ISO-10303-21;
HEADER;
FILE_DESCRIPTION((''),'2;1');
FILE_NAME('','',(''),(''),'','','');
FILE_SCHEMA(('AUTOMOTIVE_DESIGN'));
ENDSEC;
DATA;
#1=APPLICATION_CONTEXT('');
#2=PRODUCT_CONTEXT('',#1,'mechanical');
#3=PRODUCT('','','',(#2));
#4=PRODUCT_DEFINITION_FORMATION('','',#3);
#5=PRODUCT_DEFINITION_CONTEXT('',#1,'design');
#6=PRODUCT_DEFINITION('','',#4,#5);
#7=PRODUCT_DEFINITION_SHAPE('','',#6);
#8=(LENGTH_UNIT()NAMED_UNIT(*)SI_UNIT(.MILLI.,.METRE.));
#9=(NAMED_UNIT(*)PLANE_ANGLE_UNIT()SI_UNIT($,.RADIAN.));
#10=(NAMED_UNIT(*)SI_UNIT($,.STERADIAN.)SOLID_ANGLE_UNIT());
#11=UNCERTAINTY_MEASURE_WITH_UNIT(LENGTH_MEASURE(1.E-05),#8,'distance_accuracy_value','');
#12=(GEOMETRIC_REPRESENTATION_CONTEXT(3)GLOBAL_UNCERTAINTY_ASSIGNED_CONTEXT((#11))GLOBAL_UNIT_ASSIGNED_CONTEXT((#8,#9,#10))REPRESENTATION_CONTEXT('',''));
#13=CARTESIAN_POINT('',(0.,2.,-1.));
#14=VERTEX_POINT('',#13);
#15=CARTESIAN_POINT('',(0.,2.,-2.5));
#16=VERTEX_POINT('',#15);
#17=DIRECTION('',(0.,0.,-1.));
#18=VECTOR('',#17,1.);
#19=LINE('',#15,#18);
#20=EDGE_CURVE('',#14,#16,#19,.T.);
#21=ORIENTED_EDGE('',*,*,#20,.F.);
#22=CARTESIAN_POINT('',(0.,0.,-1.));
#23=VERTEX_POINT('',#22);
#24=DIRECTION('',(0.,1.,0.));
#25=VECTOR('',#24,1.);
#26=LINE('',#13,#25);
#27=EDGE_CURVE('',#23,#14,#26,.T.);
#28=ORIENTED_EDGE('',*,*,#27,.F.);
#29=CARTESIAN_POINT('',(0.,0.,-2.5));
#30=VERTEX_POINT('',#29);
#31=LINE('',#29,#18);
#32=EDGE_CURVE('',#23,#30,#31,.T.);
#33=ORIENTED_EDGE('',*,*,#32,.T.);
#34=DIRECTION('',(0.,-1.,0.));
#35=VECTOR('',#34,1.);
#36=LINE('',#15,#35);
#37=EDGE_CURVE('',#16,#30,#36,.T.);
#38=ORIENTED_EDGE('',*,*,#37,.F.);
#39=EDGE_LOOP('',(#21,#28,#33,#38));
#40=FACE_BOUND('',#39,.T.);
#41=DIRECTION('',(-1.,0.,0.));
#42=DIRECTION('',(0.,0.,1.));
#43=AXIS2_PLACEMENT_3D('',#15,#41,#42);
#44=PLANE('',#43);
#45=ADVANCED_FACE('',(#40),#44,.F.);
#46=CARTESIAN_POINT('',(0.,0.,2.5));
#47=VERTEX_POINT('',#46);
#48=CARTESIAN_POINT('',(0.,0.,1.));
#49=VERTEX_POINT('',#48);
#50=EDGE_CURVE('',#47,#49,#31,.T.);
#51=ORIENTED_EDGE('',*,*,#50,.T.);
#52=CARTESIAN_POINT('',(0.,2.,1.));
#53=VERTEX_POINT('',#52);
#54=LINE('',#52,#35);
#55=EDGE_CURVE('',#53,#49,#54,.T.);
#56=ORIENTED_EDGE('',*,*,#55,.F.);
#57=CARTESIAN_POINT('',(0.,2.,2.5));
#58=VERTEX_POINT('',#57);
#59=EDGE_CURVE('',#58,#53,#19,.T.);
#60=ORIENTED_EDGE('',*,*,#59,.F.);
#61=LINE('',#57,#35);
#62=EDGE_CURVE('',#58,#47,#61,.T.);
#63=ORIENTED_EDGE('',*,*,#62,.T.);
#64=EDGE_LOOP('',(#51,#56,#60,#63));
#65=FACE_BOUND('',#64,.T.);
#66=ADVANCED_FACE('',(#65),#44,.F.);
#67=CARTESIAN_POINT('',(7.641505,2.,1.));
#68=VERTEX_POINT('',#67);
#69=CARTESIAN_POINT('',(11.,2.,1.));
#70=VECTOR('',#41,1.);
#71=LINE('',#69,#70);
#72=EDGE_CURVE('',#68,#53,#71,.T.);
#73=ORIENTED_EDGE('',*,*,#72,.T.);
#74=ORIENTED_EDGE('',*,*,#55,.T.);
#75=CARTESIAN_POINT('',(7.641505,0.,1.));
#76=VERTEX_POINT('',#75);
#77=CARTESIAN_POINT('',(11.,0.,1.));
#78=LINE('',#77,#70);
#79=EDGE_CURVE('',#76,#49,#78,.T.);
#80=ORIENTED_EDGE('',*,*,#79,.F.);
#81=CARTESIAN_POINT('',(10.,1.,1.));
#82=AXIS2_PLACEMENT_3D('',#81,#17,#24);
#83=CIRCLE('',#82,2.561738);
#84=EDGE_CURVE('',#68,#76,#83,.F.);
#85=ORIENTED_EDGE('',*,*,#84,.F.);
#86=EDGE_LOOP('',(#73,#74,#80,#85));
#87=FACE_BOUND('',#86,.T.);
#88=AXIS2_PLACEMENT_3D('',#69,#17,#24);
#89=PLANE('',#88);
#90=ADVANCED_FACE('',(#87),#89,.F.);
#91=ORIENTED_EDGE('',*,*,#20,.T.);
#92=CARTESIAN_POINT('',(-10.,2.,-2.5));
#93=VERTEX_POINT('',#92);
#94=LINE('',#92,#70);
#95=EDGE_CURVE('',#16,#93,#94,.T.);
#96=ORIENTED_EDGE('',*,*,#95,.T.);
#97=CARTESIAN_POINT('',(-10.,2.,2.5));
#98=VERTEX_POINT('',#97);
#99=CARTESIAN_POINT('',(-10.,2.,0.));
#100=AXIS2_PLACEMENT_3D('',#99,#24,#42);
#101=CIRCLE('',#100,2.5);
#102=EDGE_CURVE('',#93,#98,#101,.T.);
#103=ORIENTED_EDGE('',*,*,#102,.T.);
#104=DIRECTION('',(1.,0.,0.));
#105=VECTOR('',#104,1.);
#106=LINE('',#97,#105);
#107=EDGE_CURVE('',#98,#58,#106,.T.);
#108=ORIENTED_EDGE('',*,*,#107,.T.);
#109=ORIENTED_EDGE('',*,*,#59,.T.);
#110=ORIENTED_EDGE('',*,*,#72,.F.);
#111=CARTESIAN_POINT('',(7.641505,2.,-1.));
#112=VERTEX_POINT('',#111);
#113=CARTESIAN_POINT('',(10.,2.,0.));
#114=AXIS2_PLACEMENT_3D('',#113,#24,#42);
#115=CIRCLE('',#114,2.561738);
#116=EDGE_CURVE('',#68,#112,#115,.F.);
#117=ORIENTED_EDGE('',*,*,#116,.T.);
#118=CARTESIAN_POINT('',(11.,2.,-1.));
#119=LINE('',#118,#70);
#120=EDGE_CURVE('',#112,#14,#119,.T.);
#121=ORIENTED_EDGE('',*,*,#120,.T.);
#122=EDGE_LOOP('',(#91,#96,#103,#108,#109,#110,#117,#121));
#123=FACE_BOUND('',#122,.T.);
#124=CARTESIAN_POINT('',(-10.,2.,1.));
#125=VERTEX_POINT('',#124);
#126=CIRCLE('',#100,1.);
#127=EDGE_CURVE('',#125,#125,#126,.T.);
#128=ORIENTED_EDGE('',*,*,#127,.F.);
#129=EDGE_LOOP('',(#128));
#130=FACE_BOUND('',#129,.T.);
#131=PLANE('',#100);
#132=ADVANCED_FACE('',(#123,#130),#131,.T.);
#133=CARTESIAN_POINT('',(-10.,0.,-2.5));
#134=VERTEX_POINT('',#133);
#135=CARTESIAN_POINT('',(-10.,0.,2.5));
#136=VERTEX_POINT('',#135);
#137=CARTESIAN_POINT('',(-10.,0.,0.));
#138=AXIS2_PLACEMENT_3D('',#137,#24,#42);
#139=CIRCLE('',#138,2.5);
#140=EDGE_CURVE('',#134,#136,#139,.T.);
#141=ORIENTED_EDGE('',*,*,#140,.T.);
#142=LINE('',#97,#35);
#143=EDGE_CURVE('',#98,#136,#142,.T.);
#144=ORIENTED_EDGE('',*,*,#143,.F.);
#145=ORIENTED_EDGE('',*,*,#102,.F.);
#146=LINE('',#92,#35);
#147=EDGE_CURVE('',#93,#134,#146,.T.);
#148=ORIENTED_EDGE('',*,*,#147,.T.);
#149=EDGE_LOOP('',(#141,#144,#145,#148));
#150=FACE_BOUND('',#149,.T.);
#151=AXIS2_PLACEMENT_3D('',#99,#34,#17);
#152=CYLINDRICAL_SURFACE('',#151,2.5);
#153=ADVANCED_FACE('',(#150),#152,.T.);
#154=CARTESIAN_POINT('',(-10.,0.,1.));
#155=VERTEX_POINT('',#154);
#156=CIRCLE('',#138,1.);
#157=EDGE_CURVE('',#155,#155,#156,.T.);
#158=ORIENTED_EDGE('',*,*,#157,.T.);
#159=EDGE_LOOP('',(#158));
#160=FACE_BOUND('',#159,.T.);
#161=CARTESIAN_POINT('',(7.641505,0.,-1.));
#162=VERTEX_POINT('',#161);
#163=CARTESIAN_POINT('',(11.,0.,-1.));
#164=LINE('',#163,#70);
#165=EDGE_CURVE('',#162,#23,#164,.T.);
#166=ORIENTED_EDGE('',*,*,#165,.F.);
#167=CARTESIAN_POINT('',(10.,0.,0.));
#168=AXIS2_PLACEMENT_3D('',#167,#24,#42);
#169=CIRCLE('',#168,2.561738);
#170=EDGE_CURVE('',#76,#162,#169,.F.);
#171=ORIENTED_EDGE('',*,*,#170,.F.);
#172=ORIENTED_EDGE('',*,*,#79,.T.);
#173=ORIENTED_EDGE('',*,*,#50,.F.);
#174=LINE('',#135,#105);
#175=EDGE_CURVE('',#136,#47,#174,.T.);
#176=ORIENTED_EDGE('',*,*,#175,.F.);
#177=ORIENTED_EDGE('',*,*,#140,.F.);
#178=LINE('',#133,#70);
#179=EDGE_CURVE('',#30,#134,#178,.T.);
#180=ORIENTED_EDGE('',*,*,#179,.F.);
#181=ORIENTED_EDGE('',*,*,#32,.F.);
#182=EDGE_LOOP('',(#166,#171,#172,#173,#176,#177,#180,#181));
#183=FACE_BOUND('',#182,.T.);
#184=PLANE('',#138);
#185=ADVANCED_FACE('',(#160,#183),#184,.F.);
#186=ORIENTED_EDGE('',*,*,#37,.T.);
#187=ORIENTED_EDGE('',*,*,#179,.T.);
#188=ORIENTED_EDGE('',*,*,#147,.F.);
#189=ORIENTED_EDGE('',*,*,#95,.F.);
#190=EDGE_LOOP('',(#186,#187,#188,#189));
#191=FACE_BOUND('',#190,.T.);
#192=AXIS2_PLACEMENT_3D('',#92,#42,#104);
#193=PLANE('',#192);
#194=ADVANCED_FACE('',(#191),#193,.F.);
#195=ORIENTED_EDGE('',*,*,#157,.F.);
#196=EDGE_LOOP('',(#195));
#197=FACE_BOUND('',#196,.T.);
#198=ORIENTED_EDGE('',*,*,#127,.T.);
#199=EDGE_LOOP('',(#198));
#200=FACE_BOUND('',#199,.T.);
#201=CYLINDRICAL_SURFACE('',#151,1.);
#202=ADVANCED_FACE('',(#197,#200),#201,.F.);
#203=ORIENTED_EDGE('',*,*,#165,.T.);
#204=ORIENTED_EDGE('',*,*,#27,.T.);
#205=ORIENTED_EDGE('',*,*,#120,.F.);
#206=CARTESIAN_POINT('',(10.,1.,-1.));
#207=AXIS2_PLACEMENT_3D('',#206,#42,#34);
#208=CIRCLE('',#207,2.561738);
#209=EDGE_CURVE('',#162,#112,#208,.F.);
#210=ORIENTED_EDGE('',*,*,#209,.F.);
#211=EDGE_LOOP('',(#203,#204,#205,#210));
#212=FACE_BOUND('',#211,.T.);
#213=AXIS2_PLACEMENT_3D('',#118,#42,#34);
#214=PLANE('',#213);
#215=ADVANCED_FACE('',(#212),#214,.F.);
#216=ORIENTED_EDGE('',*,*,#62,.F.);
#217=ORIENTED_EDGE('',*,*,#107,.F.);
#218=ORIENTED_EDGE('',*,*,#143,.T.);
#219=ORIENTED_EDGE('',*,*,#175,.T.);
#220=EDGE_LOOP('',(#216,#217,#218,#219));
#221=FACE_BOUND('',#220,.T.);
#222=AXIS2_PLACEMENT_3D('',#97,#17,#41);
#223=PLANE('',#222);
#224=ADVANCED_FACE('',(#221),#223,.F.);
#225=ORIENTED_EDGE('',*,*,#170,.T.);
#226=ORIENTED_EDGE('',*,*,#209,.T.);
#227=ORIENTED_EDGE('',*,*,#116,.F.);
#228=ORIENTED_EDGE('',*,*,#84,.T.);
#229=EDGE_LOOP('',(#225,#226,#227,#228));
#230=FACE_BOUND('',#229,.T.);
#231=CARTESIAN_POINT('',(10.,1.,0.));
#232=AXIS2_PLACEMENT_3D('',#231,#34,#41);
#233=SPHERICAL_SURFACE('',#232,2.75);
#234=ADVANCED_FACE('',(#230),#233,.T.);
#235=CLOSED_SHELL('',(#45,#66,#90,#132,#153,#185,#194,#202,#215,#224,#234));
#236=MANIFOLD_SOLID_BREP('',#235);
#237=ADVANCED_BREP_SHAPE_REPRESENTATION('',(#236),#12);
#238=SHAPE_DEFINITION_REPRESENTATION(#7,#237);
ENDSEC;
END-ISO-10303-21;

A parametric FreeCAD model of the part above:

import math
import FreeCAD as App
import Part
import Sketcher
from FreeCAD import Vector


def add_polygon(sketch, points):
    """Adds a closed chain of lines whose ends are joined by coincident constraints."""
    first, n = sketch.GeometryCount, len(points)
    for a, b in zip(points, points[1:] + points[:1]):
        sketch.addGeometry(Part.LineSegment(App.Vector(*a, 0), App.Vector(*b, 0)), False)
    for i in range(n):
        sketch.addConstraint(Sketcher.Constraint("Coincident", first + i, 2, first + (i + 1) % n, 1))

doc = App.newDocument("Part")
body = doc.addObject("PartDesign::Body", "Body")

# Sketch on XZ plane
sketch1 = doc.addObject("Sketcher::SketchObject", "Sketch")
body.addObject(sketch1)
sketch1.AttachmentSupport = (doc.XZ_Plane, [""])
sketch1.MapMode = "FlatFace"
sketch1.addGeometry([
    Part.LineSegment(Vector(0, -2.5, 0), Vector(-10, -2.5, 0)),  # 0
    Part.ArcOfCircle(Part.Circle(Vector(-10, 0, 0), Vector(0, 0, 1), 2.5), math.radians(90), math.radians(270)),  # 1
    Part.LineSegment(Vector(-10, 2.5, 0), Vector(0, 2.5, 0)),  # 2
    Part.LineSegment(Vector(0, 2.5, 0), Vector(0, -2.5, 0)),  # 3
    Part.Circle(Vector(-10, 0, 0), Vector(0, 0, 1), 1),  # 4
], False)
sketch1.addConstraint([
    Sketcher.Constraint("Tangent", 0, 2, 1, 2),
    Sketcher.Constraint("Tangent", 1, 1, 2, 1),
    Sketcher.Constraint("Coincident", 2, 2, 3, 1),
    Sketcher.Constraint("Coincident", 3, 2, 0, 1),
    Sketcher.Constraint("Horizontal", 0),
    Sketcher.Constraint("Horizontal", 2),
    Sketcher.Constraint("Vertical", 3),
    Sketcher.Constraint("Coincident", 4, 3, 1, 3),
    Sketcher.Constraint("Symmetric", 2, 2, 3, 2, -1, 1),
    Sketcher.Constraint("Diameter", 4, 2.0),
    Sketcher.Constraint("Radius", 1, 2.5),
    Sketcher.Constraint("DistanceX", 0, 2, 0, 1, 10.0),
])
pad1 = doc.addObject("PartDesign::Pad", "Pad")
body.addObject(pad1)
pad1.Profile = sketch1
pad1.Length = 2
pad1.Reversed = True

# Sketch on YZ plane
sketch2 = doc.addObject("Sketcher::SketchObject", "Sketch001")
body.addObject(sketch2)
sketch2.AttachmentSupport = (doc.YZ_Plane, [""])
sketch2.MapMode = "FlatFace"
add_polygon(sketch2, [(2, 1), (0, 1), (0, -1), (2, -1)])  # lines 0-3
sketch2.addConstraint([
    Sketcher.Constraint("Horizontal", 0),
    Sketcher.Constraint("Vertical", 1),
    Sketcher.Constraint("Horizontal", 2),
    Sketcher.Constraint("Vertical", 3),
    Sketcher.Constraint("Symmetric", 0, 2, 1, 2, -1, 1),
    Sketcher.Constraint("Equal", 2, 1),
    Sketcher.Constraint("DistanceX", 0, 2, 0, 1, 2.0),
])
pad2 = doc.addObject("PartDesign::Pad", "Pad001")
body.addObject(pad2)
pad2.Profile = sketch2
pad2.Length = 11

# Sketch on XZ plane
sketch3 = doc.addObject("Sketcher::SketchObject", "Sketch002")
body.addObject(sketch3)
sketch3.AttachmentSupport = (doc.XZ_Plane, [""])
sketch3.MapMode = "FlatFace"
sketch3.AttachmentOffset = App.Placement(Vector(0, 0, -2), App.Rotation())
sketch3.addGeometry([
    Part.LineSegment(Vector(10, -1.5, 0), Vector(10, -1, 0)),  # 0
    Part.ArcOfCircle(Part.Circle(Vector(10, 0, 0), Vector(0, 0, 1), 1), math.radians(-90), math.radians(90)),  # 1
    Part.LineSegment(Vector(10, 1, 0), Vector(10, 1.5, 0)),  # 2
    Part.LineSegment(Vector(10, 1.5, 0), Vector(12, 1.5, 0)),  # 3
    Part.LineSegment(Vector(12, 1.5, 0), Vector(12, -1.5, 0)),  # 4
    Part.LineSegment(Vector(12, -1.5, 0), Vector(10, -1.5, 0)),  # 5
], False)
sketch3.addConstraint([
    Sketcher.Constraint("Coincident", 0, 2, 1, 1),
    Sketcher.Constraint("Coincident", 1, 2, 2, 1),
    Sketcher.Constraint("Coincident", 2, 2, 3, 1),
    Sketcher.Constraint("Coincident", 3, 2, 4, 1),
    Sketcher.Constraint("Coincident", 4, 2, 5, 1),
    Sketcher.Constraint("Coincident", 5, 2, 0, 1),
    Sketcher.Constraint("Vertical", 0),
    Sketcher.Constraint("Vertical", 2),
    Sketcher.Constraint("Horizontal", 3),
    Sketcher.Constraint("Vertical", 4),
    Sketcher.Constraint("Horizontal", 5),
    Sketcher.Constraint("Symmetric", 0, 2, 1, 2, -1),
    Sketcher.Constraint("Vertical", 1, 3, 0, 2),
    Sketcher.Constraint("Equal", 0, 2),
    Sketcher.Constraint("Radius", 1, 1.0),
    Sketcher.Constraint("DistanceX", 3, 1, 3, 2, 2.0),
    Sketcher.Constraint("DistanceY", 4, 2, 4, 1, 3.0),
    Sketcher.Constraint("DistanceX", -1, 1, 1, 3, 10.0),
])
pocket1 = doc.addObject("PartDesign::Pocket", "Pocket")
body.addObject(pocket1)
pocket1.Profile = sketch3
pocket1.Type = "ThroughAll"
pocket1.Midplane = True

# Sketch on XY plane
sketch4 = doc.addObject("Sketcher::SketchObject", "Sketch003")
body.addObject(sketch4)
sketch4.AttachmentSupport = (doc.XY_Plane, [""])
sketch4.MapMode = "FlatFace"
sketch4.AttachmentOffset = App.Placement(Vector(0, 0, -1), App.Rotation())
sketch4.addGeometry([
    Part.LineSegment(Vector(10, 2, 0), Vector(10, 2.5, 0)),  # 0
    Part.LineSegment(Vector(10, 2.5, 0), Vector(12, 2.5, 0)),  # 1
    Part.LineSegment(Vector(12, 2.5, 0), Vector(12, -0.5, 0)),  # 2
    Part.LineSegment(Vector(12, -0.5, 0), Vector(10, -0.5, 0)),  # 3
    Part.LineSegment(Vector(10, -0.5, 0), Vector(10, 0, 0)),  # 4
    Part.ArcOfCircle(Part.Circle(Vector(10, 1, 0), Vector(0, 0, 1), 1), math.radians(-90), math.radians(90)),  # 5
], False)
sketch4.addConstraint([
    Sketcher.Constraint("Coincident", 0, 2, 1, 1),
    Sketcher.Constraint("Coincident", 1, 2, 2, 1),
    Sketcher.Constraint("Coincident", 2, 2, 3, 1),
    Sketcher.Constraint("Coincident", 3, 2, 4, 1),
    Sketcher.Constraint("Coincident", 4, 2, 5, 1),
    Sketcher.Constraint("Coincident", 5, 2, 0, 1),
    Sketcher.Constraint("Vertical", 0),
    Sketcher.Constraint("Horizontal", 1),
    Sketcher.Constraint("Vertical", 2),
    Sketcher.Constraint("Horizontal", 3),
    Sketcher.Constraint("Vertical", 4),
    Sketcher.Constraint("PointOnObject", 4, 2, -1),
    Sketcher.Constraint("Vertical", 5, 3, 0, 2),
    Sketcher.Constraint("Vertical", 0, 2, 3, 2),
    Sketcher.Constraint("Equal", 0, 4),
    Sketcher.Constraint("Radius", 5, 1.0),
    Sketcher.Constraint("DistanceX", 1, 1, 1, 2, 2.0),
    Sketcher.Constraint("DistanceY", 2, 2, 2, 1, 3.0),
    Sketcher.Constraint("DistanceX", -1, 1, 5, 3, 10.0),
])
pocket2 = doc.addObject("PartDesign::Pocket", "Pocket001")
body.addObject(pocket2)
pocket2.Profile = sketch4
pocket2.Type = "ThroughAll"
pocket2.Midplane = True

# Sketch on XY plane
sketch5 = doc.addObject("Sketcher::SketchObject", "Sketch004")
body.addObject(sketch5)
sketch5.AttachmentSupport = (doc.XY_Plane, [""])
sketch5.MapMode = "FlatFace"
sketch5.AttachmentOffset = App.Placement(Vector(0, 0, -1), App.Rotation())
sketch5.addGeometry(Part.Circle(Vector(10, 1, 0), Vector(0, 0, 1), 0.5), False)
sketch5.addConstraint([
    Sketcher.Constraint("Diameter", 0, 1.0),
    Sketcher.Constraint("DistanceX", -1, 1, 0, 3, 10.0),
    Sketcher.Constraint("DistanceY", -1, 1, 0, 3, 1.0),
])
pocket3 = doc.addObject("PartDesign::Pocket", "Pocket002")
body.addObject(pocket3)
pocket3.Profile = sketch5
pocket3.Type = "ThroughAll"
pocket3.Midplane = True

# Sketch on XY plane
sketch6 = doc.addObject("Sketcher::SketchObject", "Sketch005")
body.addObject(sketch6)
sketch6.AttachmentSupport = (doc.XY_Plane, [""])
sketch6.MapMode = "FlatFace"
sketch6.addGeometry([
    Part.ArcOfCircle(Part.Circle(Vector(10, 1, 0), Vector(0, 0, 1), 2.8), math.radians(-90), math.radians(90)),
    Part.LineSegment(Vector(10, 3.8, 0), Vector(10, -1.8, 0)),
], False)
sketch6.addGeometry(Part.LineSegment(Vector(10, -1.8, 0), Vector(10, 3.8, 0)), True)  # axis
sketch6.addConstraint([
    Sketcher.Constraint("Coincident", 0, 1, 1, 2),
    Sketcher.Constraint("Coincident", 1, 1, 0, 2),
    Sketcher.Constraint("Vertical", 1),
    Sketcher.Constraint("Vertical", 2),
    Sketcher.Constraint("Coincident", 2, 1, 0, 1),
    Sketcher.Constraint("Equal", 1, 2),
    Sketcher.Constraint("Radius", 0, 2.75),
    Sketcher.Constraint("DistanceX", -1, 1, 0, 3, 10.0),
    Sketcher.Constraint("DistanceY", -1, 1, 0, 3, 1.0),
    Sketcher.Constraint("DistanceX", -1, 1, 0, 1, 10.0),
])
revolution = doc.addObject("PartDesign::Revolution", "Revolution")
body.addObject(revolution)
revolution.Profile = sketch6
revolution.ReferenceAxis = (sketch6, ["Axis0"])
revolution.Angle = 360

doc.recompute()
